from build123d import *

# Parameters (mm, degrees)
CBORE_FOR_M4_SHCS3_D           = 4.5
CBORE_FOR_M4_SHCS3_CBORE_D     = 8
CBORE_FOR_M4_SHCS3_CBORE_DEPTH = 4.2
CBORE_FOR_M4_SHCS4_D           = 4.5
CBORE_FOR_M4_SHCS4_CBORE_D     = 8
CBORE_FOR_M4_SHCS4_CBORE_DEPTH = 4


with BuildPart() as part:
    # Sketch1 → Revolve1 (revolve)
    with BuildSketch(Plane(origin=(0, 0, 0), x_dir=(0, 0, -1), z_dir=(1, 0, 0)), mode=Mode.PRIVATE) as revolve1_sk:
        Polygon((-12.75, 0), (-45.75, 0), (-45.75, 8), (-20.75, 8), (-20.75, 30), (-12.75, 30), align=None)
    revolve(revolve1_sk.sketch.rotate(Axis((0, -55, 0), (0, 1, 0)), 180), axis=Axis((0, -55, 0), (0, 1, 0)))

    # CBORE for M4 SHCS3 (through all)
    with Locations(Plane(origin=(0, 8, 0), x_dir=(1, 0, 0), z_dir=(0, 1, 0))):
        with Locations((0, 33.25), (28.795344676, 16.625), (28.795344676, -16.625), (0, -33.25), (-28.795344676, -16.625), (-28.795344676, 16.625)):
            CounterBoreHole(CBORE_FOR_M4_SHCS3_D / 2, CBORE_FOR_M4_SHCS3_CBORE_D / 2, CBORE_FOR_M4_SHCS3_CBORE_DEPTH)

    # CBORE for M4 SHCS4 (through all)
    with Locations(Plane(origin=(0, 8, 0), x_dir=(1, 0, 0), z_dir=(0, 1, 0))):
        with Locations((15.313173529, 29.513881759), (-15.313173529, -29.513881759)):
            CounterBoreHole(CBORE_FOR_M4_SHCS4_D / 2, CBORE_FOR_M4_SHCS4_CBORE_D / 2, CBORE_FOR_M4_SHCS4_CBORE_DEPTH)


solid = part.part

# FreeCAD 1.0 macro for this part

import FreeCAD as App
import Part
import Sketcher
from FreeCAD import Vector

doc = App.newDocument("Part")
body = doc.addObject("PartDesign::Body", "Body")

# Sketch on YZ plane
sketch1 = doc.addObject("Sketcher::SketchObject", "Sketch")
body.addObject(sketch1)
sketch1.AttachmentSupport = (doc.YZ_Plane, [""])
sketch1.MapMode = "FlatFace"
sketch1.addGeometry(Part.LineSegment(Vector(0, 46, 0), Vector(0, 13, 0)), False)
sketch1.addGeometry(Part.LineSegment(Vector(0, 13, 0), Vector(30, 13, 0)), False)
sketch1.addGeometry(Part.LineSegment(Vector(30, 13, 0), Vector(30, 21, 0)), False)
sketch1.addGeometry(Part.LineSegment(Vector(30, 21, 0), Vector(8, 21, 0)), False)
sketch1.addGeometry(Part.LineSegment(Vector(8, 21, 0), Vector(8, 46, 0)), False)
sketch1.addGeometry(Part.LineSegment(Vector(8, 46, 0), Vector(0, 46, 0)), False)
sketch1.addConstraint(Sketcher.Constraint("Coincident", 0, 2, 1, 1))
sketch1.addConstraint(Sketcher.Constraint("Coincident", 1, 2, 2, 1))
sketch1.addConstraint(Sketcher.Constraint("Coincident", 2, 2, 3, 1))
sketch1.addConstraint(Sketcher.Constraint("Coincident", 3, 2, 4, 1))
sketch1.addConstraint(Sketcher.Constraint("Coincident", 4, 2, 5, 1))
sketch1.addConstraint(Sketcher.Constraint("Coincident", 5, 2, 0, 1))
sketch1.addConstraint(Sketcher.Constraint("Vertical", 0))
sketch1.addConstraint(Sketcher.Constraint("Horizontal", 1))
sketch1.addConstraint(Sketcher.Constraint("Vertical", 2))
sketch1.addConstraint(Sketcher.Constraint("Horizontal", 3))
sketch1.addConstraint(Sketcher.Constraint("Vertical", 4))
sketch1.addConstraint(Sketcher.Constraint("Horizontal", 5))
sketch1.addConstraint(Sketcher.Constraint("PointOnObject", 0, 2, -2))
sketch1.addConstraint(Sketcher.Constraint("Equal", 5, 2))
sketch1.addConstraint(Sketcher.Constraint("DistanceX", 1, 1, 1, 2, 30.0))
sketch1.addConstraint(Sketcher.Constraint("DistanceX", 3, 2, 3, 1, 22.0))
sketch1.addConstraint(Sketcher.Constraint("DistanceY", 0, 2, 0, 1, 33.0))
sketch1.addConstraint(Sketcher.Constraint("DistanceY", -1, 1, 0, 2, 12.75))
revolution = doc.addObject("PartDesign::Revolution", "Revolution")
body.addObject(revolution)
revolution.Profile = sketch1
revolution.ReferenceAxis = (sketch1, ["H_Axis"])
revolution.Angle = 360

# Sketch on XZ plane
sketch2 = doc.addObject("Sketcher::SketchObject", "Sketch001")
body.addObject(sketch2)
sketch2.AttachmentSupport = (doc.XZ_Plane, [""])
sketch2.MapMode = "FlatFace"
sketch2.AttachmentOffset = App.Placement(Vector(0, 0, -8), App.Rotation())
sketch2.addGeometry(Part.Circle(Vector(0, -33.2, 0), Vector(0, 0, 1), 2.2), False)
sketch2.addGeometry(Part.Circle(Vector(28.8, -16.6, 0), Vector(0, 0, 1), 2.2), False)
sketch2.addGeometry(Part.Circle(Vector(28.8, 16.6, 0), Vector(0, 0, 1), 2.2), False)
sketch2.addGeometry(Part.Circle(Vector(0, 33.2, 0), Vector(0, 0, 1), 2.2), False)
sketch2.addGeometry(Part.Circle(Vector(-28.8, 16.6, 0), Vector(0, 0, 1), 2.2), False)
sketch2.addGeometry(Part.Circle(Vector(-28.8, -16.6, 0), Vector(0, 0, 1), 2.2), False)
sketch2.addConstraint(Sketcher.Constraint("Equal", 0, 1))
sketch2.addConstraint(Sketcher.Constraint("Equal", 1, 2))
sketch2.addConstraint(Sketcher.Constraint("Equal", 2, 3))
sketch2.addConstraint(Sketcher.Constraint("Equal", 3, 4))
sketch2.addConstraint(Sketcher.Constraint("Equal", 4, 5))
sketch2.addConstraint(Sketcher.Constraint("Symmetric", 0, 3, 3, 3, -1, 1))
sketch2.addConstraint(Sketcher.Constraint("Symmetric", 1, 3, 4, 3, -1, 1))
sketch2.addConstraint(Sketcher.Constraint("Symmetric", 2, 3, 5, 3, -1, 1))
sketch2.addConstraint(Sketcher.Constraint("Symmetric", 2, 3, 4, 3, -2))
sketch2.addConstraint(Sketcher.Constraint("PointOnObject", 0, 3, -2))
sketch2.addConstraint(Sketcher.Constraint("Diameter", 0, 4.5))
sketch2.addConstraint(Sketcher.Constraint("DistanceY", 0, 3, 3, 3, 66.5))
sketch2.addConstraint(Sketcher.Constraint("DistanceY", 1, 3, 2, 3, 33.25))
sketch2.addConstraint(Sketcher.Constraint("DistanceX", 4, 3, 2, 3, 57.590689))
doc.recompute()
hole = doc.addObject("PartDesign::Hole", "Hole")
body.addObject(hole)
hole.Profile = sketch2
hole.ThreadType = "None"
hole.Diameter = 4.5
hole.DepthType = "ThroughAll"
hole.HoleCutType = "Counterbore"
hole.HoleCutDiameter = 8
hole.HoleCutDepth = 4.2
hole.Reversed = True

# Sketch on XZ plane
sketch3 = doc.addObject("Sketcher::SketchObject", "Sketch002")
body.addObject(sketch3)
sketch3.AttachmentSupport = (doc.XZ_Plane, [""])
sketch3.MapMode = "FlatFace"
sketch3.AttachmentOffset = App.Placement(Vector(0, 0, -8), App.Rotation())
sketch3.addGeometry(Part.Circle(Vector(15.3, -29.5, 0), Vector(0, 0, 1), 2.2), False)
sketch3.addGeometry(Part.Circle(Vector(-15.3, 29.5, 0), Vector(0, 0, 1), 2.2), False)
sketch3.addConstraint(Sketcher.Constraint("Equal", 0, 1))
sketch3.addConstraint(Sketcher.Constraint("Symmetric", 0, 3, 1, 3, -1, 1))
sketch3.addConstraint(Sketcher.Constraint("Diameter", 0, 4.5))
sketch3.addConstraint(Sketcher.Constraint("DistanceY", 0, 3, -1, 1, 29.513882))
sketch3.addConstraint(Sketcher.Constraint("DistanceX", -1, 1, 0, 3, 15.313174))
doc.recompute()
hole2 = doc.addObject("PartDesign::Hole", "Hole001")
body.addObject(hole2)
hole2.Profile = sketch3
hole2.ThreadType = "None"
hole2.Diameter = 4.5
hole2.DepthType = "ThroughAll"
hole2.HoleCutType = "Counterbore"
hole2.HoleCutDiameter = 8
hole2.HoleCutDepth = 4
hole2.Reversed = True

doc.recompute()
